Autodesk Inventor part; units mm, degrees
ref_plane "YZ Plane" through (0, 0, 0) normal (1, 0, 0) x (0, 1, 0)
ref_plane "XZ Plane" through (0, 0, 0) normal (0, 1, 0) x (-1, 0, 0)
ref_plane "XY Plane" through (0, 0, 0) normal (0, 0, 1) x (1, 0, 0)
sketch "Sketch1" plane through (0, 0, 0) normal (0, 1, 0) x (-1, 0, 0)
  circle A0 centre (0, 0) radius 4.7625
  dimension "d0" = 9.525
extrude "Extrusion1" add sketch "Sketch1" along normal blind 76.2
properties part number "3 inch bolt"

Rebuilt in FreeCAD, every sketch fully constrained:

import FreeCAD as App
import Part
import Sketcher
Q = App.Units.Quantity

doc = App.newDocument("Part")
body = doc.addObject("PartDesign::Body", "Body")

# Sketch on XZ plane
sketch1 = body.newObject("Sketcher::SketchObject", "Sketch")
sketch1.AttachmentSupport = (doc.getObject("XZ_Plane"), [""])
sketch1.MapMode = "FlatFace"
sketch1.addGeometry(Part.Circle(App.Vector(0, 0, 0), App.Vector(0, 0, 1), 4.8), False)
sketch1.addConstraint([
    Sketcher.Constraint("Coincident", 0, 3, -1, 1),
    Sketcher.Constraint("Diameter", 0, Q("0.375 in")),
])
pad1 = body.newObject("PartDesign::Pad", "Pad")
pad1.Profile = sketch1
pad1.Length = Q("3 in")
pad1.Reversed = True

doc.recompute()
